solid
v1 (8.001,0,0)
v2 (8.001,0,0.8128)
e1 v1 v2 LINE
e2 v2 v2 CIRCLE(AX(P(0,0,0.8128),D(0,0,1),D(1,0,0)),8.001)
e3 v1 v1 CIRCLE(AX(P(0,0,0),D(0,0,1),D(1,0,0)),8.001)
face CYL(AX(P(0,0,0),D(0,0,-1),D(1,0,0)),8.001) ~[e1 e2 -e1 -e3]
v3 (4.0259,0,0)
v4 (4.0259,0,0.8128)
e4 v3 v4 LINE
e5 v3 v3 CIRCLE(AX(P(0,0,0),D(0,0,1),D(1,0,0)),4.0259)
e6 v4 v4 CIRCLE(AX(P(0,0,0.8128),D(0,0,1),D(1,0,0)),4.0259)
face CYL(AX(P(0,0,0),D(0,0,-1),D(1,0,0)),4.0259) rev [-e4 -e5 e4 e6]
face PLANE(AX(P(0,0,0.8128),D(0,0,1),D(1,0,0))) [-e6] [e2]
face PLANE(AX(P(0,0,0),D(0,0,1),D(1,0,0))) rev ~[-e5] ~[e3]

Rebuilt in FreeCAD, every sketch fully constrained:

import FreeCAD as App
import Part
import Sketcher
Q = App.Units.Quantity

doc = App.newDocument("Part")
params = doc.addObject("Spreadsheet::Sheet", "Params")
for row, (alias, value) in enumerate([
    ("sketch1_diameter", "0.63 in"),
    ("sketch1_diameter2", "0.317 in"),
    ("pad1_length", "0.032 in"),
], start=1):
    params.set(f"A{row}", alias)
    params.set(f"B{row}", "=" + value)
    params.setAlias(f"B{row}", alias)

body = doc.addObject("PartDesign::Body", "Body")

# Sketch on XY plane
sketch1 = doc.addObject("Sketcher::SketchObject", "Sketch")
body.addObject(sketch1)
sketch1.AttachmentSupport = (doc.XY_Plane, [""])
sketch1.MapMode = "FlatFace"
sketch1.addGeometry(Part.Circle(App.Vector(0, 0, 0), App.Vector(0, 0, 1), 8.001), False)
sketch1.addGeometry(Part.Circle(App.Vector(0, 0, 0), App.Vector(0, 0, 1), 4.0259), False)
sketch1.addConstraint(Sketcher.Constraint("Coincident", 0, 3, -1, 1))
sketch1.addConstraint(Sketcher.Constraint("Coincident", 1, 3, -1, 1))
sketch1.addConstraint(Sketcher.Constraint("Diameter", 0, Q("0.63 in")))
sketch1.addConstraint(Sketcher.Constraint("Diameter", 1, Q("0.317 in")))
sketch1.setExpression("Constraints[2]", "Params.sketch1_diameter")
sketch1.setExpression("Constraints[3]", "Params.sketch1_diameter2")
pad1 = doc.addObject("PartDesign::Pad", "Pad")
body.addObject(pad1)
pad1.Profile = sketch1
pad1.setExpression("Length", "Params.pad1_length")

doc.recompute()
